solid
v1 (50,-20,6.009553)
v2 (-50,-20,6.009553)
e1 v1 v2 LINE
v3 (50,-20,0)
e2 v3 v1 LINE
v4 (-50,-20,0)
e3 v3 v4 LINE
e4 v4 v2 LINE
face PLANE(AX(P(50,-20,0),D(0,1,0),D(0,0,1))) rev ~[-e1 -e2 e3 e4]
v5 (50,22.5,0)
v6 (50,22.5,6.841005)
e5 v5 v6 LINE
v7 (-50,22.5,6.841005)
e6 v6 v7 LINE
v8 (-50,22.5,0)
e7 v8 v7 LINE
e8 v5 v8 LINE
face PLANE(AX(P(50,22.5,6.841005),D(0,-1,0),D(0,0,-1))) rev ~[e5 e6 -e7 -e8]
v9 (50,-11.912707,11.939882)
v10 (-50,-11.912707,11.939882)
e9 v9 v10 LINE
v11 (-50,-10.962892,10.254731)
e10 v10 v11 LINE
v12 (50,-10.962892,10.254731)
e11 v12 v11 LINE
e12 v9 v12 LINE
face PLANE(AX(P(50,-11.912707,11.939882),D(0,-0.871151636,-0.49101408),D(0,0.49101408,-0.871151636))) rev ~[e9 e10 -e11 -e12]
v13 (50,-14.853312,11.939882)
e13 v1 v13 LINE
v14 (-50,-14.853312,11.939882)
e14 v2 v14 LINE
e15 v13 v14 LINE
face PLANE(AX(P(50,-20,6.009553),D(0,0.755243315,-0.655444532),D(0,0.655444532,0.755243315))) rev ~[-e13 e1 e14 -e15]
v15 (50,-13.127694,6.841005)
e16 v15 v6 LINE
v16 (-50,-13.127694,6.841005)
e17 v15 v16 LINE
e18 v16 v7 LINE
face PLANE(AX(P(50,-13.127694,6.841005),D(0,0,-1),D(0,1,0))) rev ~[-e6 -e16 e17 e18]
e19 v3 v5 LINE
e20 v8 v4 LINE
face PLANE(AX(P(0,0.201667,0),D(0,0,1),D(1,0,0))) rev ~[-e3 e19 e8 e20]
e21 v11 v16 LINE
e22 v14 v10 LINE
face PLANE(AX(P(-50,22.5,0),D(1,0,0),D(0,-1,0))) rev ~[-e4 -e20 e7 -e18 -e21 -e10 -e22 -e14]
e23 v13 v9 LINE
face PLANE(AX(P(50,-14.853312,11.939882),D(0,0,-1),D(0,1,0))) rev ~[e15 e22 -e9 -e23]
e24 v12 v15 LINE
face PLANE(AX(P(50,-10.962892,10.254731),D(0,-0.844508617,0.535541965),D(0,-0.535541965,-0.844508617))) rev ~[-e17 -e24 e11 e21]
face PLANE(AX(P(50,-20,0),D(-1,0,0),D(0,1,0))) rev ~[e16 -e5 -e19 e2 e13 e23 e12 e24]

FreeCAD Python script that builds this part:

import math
import FreeCAD as App
import Part
import Sketcher

V = App.Vector
Q = App.Units.Quantity


def add_polygon(sketch, points):
    """Adds a closed chain of lines whose ends are joined by coincident constraints."""
    first, n = sketch.GeometryCount, len(points)
    for a, b in zip(points, points[1:] + points[:1]):
        sketch.addGeometry(Part.LineSegment(App.Vector(*a, 0), App.Vector(*b, 0)), False)
    for i in range(n):
        sketch.addConstraint(Sketcher.Constraint("Coincident", first + i, 2, first + (i + 1) % n, 1))

doc = App.newDocument("Part")
body = doc.addObject("PartDesign::Body", "Body")

# Sketch on XY plane
sketch1 = body.newObject("Sketcher::SketchObject", "Sketch")
sketch1.AttachmentSupport = (doc.getObject("XY_Plane"), [""])
sketch1.MapMode = "FlatFace"
sketch1.addGeometry([
    Part.LineSegment(V(-45, -25, 0), V(45, -25, 0)),  # 0
    Part.ArcOfCircle(Part.Circle(V(45, -20, 0), V(0, 0, 1), 5), math.radians(-90), math.radians(0)),  # 1
    Part.LineSegment(V(50, -20, 0), V(50, 22.5, 0)),  # 2
    Part.ArcOfCircle(Part.Circle(V(47.5, 22.5, 0), V(0, 0, 1), 2.5), math.radians(0), math.radians(90)),  # 3
    Part.LineSegment(V(47.5, 25, 0), V(-47.5, 25, 0)),  # 4
    Part.ArcOfCircle(Part.Circle(V(-47.5, 22.5, 0), V(0, 0, 1), 2.5), math.radians(90), math.radians(180)),  # 5
    Part.LineSegment(V(-50, 22.5, 0), V(-50, -20, 0)),  # 6
    Part.ArcOfCircle(Part.Circle(V(-45, -20, 0), V(0, 0, 1), 5), math.radians(180), math.radians(270)),  # 7
], False)
sketch1.addConstraint([
    Sketcher.Constraint("Tangent", 0, 2, 1, 1),
    Sketcher.Constraint("Tangent", 1, 2, 2, 1),
    Sketcher.Constraint("Tangent", 2, 2, 3, 1),
    Sketcher.Constraint("Tangent", 3, 2, 4, 1),
    Sketcher.Constraint("Tangent", 4, 2, 5, 1),
    Sketcher.Constraint("Tangent", 5, 2, 6, 1),
    Sketcher.Constraint("Tangent", 6, 2, 7, 1),
    Sketcher.Constraint("Tangent", 7, 2, 0, 1),
    Sketcher.Constraint("Horizontal", 0),
    Sketcher.Constraint("Vertical", 2),
    Sketcher.Constraint("Horizontal", 4),
    Sketcher.Constraint("Vertical", 6),
    Sketcher.Constraint("Equal", 3, 5),
    Sketcher.Constraint("Equal", 1, 7),
    Sketcher.Constraint("Radius", 1, Q("5 mm")),
    Sketcher.Constraint("Radius", 3, Q("2.5 mm")),
    Sketcher.Constraint("DistanceX", 0, 1, 0, 2, Q("90 mm")),
    Sketcher.Constraint("DistanceY", 2, 1, 2, 2, Q("42.5 mm")),
    Sketcher.Constraint("DistanceX", -1, 1, 1, 3, Q("45 mm")),
    Sketcher.Constraint("DistanceY", 1, 3, -1, 1, Q("20 mm")),
])
pad1 = body.newObject("PartDesign::Pad", "Pad")
pad1.Profile = sketch1
pad1.Length = 25

# Sketch on YZ plane
sketch2 = body.newObject("Sketcher::SketchObject", "Sketch001")
sketch2.AttachmentSupport = (doc.getObject("YZ_Plane"), [""])
sketch2.MapMode = "FlatFace"
sketch2.AttachmentOffset = App.Placement(V(0, 0, 50), App.Rotation())
add_polygon(sketch2, [(22.5, 0), (25.47498, 0), (36.329705, 11.939882), (27.17093, 33.984292), (-13.127694, 31.712869), (-32.777436, 29.155118), (-25.215443, 0), (-20, 0), (-20, 6.009553), (-14.853312, 11.939882), (-11.912707, 11.939882), (-10.962892, 10.254731), (-13.127694, 6.841005), (22.5, 6.841005)])  # lines 0-13
sketch2.addConstraint([
    Sketcher.Constraint("Horizontal", 0),
    Sketcher.Constraint("Horizontal", 6),
    Sketcher.Constraint("Vertical", 7),
    Sketcher.Constraint("Horizontal", 9),
    Sketcher.Constraint("Horizontal", 12),
    Sketcher.Constraint("Vertical", 13),
    Sketcher.Constraint("PointOnObject", 0, 2, -1),
    Sketcher.Constraint("PointOnObject", 5, 2, -1),
    Sketcher.Constraint("Horizontal", 1, 2, 8, 2),
    Sketcher.Constraint("Vertical", 3, 2, 11, 2),
    Sketcher.Constraint("DistanceX", 6, 2, -1, 1, Q("20 mm")),
    Sketcher.Constraint("DistanceX", -1, 1, 12, 2, Q("22.5 mm")),
    Sketcher.Constraint("DistanceX", 0, 1, 0, 2, Q("2.97498 mm")),
    Sketcher.Constraint("DistanceX", 3, 2, 1, 2, Q("49.457399 mm")),
    Sketcher.Constraint("DistanceX", 11, 2, 10, 2, Q("2.164802 mm")),
    Sketcher.Constraint("Distance", 4, Q("19.815511 mm")),
    Sketcher.Constraint("Distance", 5, Q("30.119838 mm")),
    Sketcher.Constraint("Distance", 8, Q("7.85221 mm")),
    Sketcher.Constraint("DistanceX", 6, 1, 6, 2, Q("5.215443 mm")),
    Sketcher.Constraint("DistanceX", 9, 1, 9, 2, Q("2.940604 mm")),
    Sketcher.Constraint("DistanceX", 12, 1, 12, 2, Q("35.627694 mm")),
    Sketcher.Constraint("DistanceY", 7, 1, 7, 2, Q("6.009553 mm")),
    Sketcher.Constraint("DistanceY", 13, 2, 13, 1, Q("6.841005 mm")),
    Sketcher.Constraint("DistanceX", -1, 1, 2, 2, Q("27.17093 mm")),
    Sketcher.Constraint("DistanceY", -1, 1, 3, 2, Q("31.712869 mm")),
    Sketcher.Constraint("DistanceX", 8, 2, -1, 1, Q("14.853312 mm")),
    Sketcher.Constraint("DistanceY", -1, 1, 10, 2, Q("10.254731 mm")),
    Sketcher.Constraint("DistanceY", 1, 2, 2, 2, Q("22.04441 mm")),
])
pocket1 = body.newObject("PartDesign::Pocket", "Pocket")
pocket1.Profile = sketch2
pocket1.Length = 106.1

doc.recompute()
